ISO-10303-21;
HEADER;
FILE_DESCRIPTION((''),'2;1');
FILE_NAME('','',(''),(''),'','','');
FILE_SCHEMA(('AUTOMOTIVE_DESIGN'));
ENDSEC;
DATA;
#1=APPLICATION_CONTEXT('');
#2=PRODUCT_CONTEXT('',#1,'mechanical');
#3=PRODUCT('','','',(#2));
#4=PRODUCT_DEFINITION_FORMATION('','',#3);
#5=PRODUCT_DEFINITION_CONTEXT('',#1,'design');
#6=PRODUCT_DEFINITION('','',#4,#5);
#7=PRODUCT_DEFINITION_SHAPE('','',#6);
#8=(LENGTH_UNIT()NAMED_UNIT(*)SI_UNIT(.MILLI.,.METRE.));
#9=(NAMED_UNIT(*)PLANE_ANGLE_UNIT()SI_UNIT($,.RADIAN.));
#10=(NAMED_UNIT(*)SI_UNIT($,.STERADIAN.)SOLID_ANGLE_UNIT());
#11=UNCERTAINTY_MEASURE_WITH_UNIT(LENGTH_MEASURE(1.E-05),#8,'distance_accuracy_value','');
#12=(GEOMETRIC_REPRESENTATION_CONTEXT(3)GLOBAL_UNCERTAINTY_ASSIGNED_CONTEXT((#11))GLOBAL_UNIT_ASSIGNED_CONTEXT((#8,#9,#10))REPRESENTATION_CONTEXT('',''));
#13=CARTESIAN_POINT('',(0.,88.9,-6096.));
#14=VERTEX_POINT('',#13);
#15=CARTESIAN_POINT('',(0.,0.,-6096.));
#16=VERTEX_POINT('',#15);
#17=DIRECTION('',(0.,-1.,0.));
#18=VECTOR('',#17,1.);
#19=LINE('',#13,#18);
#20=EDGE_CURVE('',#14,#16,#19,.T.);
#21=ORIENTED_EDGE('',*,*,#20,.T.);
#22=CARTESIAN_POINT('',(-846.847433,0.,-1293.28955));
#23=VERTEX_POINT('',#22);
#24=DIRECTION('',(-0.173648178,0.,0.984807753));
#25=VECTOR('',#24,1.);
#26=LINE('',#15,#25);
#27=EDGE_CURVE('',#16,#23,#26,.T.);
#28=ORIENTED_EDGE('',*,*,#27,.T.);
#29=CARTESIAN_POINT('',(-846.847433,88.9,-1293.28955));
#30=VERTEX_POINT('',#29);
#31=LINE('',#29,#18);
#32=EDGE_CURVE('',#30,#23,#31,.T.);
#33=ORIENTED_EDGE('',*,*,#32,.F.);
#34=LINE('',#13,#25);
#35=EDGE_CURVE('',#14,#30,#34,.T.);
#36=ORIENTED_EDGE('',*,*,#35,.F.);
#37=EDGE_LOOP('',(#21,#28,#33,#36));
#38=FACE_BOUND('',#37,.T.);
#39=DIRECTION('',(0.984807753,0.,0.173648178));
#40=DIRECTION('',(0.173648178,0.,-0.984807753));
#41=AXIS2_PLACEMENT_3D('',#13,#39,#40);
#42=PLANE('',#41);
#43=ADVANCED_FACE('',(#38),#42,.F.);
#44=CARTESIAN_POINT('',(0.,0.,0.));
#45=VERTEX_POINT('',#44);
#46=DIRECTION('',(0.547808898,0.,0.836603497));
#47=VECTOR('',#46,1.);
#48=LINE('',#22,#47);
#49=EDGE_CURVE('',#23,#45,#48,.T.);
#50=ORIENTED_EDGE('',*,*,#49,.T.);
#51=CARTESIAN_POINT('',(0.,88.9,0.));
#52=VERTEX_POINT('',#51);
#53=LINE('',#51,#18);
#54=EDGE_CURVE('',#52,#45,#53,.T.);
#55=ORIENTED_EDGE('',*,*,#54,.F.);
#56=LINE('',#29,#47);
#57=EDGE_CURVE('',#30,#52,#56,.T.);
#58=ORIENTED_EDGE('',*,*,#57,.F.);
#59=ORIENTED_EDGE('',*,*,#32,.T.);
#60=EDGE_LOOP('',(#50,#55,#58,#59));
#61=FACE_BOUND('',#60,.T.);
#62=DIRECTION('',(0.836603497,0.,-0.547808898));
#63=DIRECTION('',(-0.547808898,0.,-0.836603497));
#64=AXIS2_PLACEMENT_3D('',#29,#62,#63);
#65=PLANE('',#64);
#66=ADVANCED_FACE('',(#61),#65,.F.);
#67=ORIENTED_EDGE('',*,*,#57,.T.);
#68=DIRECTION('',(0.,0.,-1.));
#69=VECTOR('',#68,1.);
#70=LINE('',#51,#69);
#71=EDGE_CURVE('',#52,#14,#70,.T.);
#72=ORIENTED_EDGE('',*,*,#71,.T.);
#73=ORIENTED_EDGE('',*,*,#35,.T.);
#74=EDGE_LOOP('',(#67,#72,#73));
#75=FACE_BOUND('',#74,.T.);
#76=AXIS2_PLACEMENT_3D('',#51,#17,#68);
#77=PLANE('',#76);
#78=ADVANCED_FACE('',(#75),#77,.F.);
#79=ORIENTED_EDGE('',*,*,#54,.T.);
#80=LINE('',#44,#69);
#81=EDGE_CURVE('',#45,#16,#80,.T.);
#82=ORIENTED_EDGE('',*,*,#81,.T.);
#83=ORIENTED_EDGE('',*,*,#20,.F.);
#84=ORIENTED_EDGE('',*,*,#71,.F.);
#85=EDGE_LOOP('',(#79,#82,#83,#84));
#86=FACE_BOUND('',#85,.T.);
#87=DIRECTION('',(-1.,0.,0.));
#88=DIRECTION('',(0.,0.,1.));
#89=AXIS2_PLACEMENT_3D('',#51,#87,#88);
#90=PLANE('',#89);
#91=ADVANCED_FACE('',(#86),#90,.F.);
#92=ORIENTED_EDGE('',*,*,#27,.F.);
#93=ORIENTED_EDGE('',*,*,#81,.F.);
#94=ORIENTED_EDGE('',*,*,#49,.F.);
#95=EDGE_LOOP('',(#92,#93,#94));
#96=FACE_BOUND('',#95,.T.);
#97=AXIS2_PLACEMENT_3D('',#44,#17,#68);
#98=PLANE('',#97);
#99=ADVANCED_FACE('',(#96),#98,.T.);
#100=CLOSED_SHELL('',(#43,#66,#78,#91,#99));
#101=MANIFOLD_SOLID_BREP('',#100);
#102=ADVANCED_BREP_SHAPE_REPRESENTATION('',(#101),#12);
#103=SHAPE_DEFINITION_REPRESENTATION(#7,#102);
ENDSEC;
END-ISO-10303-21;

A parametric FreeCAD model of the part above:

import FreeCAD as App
import Part
import Sketcher
from FreeCAD import Vector
Q = App.Units.Quantity


def add_polygon(sketch, points):
    """Adds a closed chain of lines whose ends are joined by coincident constraints."""
    first, n = sketch.GeometryCount, len(points)
    for a, b in zip(points, points[1:] + points[:1]):
        sketch.addGeometry(Part.LineSegment(App.Vector(*a, 0), App.Vector(*b, 0)), False)
    for i in range(n):
        sketch.addConstraint(Sketcher.Constraint("Coincident", first + i, 2, first + (i + 1) % n, 1))

doc = App.newDocument("Part")
body = doc.addObject("PartDesign::Body", "Body")

# Sketch on XZ plane
sketch1 = doc.addObject("Sketcher::SketchObject", "Sketch")
body.addObject(sketch1)
sketch1.AttachmentSupport = (doc.XZ_Plane, [""])
sketch1.MapMode = "FlatFace"
add_polygon(sketch1, [(0, 0), (0, -6096), (-846.847433, -1293.28955)])  # lines 0-2
sketch1.addConstraint([
    Sketcher.Constraint("Vertical", 0),
    Sketcher.Constraint("Coincident", 2, 2, -1, 1),
    Sketcher.Constraint("DistanceY", 0, 2, 0, 1, Q("240 in")),
    Sketcher.Constraint("Distance", 1, Q("192 in")),
    Sketcher.Constraint("Angle", 1, Q("100 deg")),
])
pad1 = doc.addObject("PartDesign::Pad", "Pad")
body.addObject(pad1)
pad1.Profile = sketch1
pad1.Length = Q("3.5 in")
pad1.Reversed = True

doc.recompute()
